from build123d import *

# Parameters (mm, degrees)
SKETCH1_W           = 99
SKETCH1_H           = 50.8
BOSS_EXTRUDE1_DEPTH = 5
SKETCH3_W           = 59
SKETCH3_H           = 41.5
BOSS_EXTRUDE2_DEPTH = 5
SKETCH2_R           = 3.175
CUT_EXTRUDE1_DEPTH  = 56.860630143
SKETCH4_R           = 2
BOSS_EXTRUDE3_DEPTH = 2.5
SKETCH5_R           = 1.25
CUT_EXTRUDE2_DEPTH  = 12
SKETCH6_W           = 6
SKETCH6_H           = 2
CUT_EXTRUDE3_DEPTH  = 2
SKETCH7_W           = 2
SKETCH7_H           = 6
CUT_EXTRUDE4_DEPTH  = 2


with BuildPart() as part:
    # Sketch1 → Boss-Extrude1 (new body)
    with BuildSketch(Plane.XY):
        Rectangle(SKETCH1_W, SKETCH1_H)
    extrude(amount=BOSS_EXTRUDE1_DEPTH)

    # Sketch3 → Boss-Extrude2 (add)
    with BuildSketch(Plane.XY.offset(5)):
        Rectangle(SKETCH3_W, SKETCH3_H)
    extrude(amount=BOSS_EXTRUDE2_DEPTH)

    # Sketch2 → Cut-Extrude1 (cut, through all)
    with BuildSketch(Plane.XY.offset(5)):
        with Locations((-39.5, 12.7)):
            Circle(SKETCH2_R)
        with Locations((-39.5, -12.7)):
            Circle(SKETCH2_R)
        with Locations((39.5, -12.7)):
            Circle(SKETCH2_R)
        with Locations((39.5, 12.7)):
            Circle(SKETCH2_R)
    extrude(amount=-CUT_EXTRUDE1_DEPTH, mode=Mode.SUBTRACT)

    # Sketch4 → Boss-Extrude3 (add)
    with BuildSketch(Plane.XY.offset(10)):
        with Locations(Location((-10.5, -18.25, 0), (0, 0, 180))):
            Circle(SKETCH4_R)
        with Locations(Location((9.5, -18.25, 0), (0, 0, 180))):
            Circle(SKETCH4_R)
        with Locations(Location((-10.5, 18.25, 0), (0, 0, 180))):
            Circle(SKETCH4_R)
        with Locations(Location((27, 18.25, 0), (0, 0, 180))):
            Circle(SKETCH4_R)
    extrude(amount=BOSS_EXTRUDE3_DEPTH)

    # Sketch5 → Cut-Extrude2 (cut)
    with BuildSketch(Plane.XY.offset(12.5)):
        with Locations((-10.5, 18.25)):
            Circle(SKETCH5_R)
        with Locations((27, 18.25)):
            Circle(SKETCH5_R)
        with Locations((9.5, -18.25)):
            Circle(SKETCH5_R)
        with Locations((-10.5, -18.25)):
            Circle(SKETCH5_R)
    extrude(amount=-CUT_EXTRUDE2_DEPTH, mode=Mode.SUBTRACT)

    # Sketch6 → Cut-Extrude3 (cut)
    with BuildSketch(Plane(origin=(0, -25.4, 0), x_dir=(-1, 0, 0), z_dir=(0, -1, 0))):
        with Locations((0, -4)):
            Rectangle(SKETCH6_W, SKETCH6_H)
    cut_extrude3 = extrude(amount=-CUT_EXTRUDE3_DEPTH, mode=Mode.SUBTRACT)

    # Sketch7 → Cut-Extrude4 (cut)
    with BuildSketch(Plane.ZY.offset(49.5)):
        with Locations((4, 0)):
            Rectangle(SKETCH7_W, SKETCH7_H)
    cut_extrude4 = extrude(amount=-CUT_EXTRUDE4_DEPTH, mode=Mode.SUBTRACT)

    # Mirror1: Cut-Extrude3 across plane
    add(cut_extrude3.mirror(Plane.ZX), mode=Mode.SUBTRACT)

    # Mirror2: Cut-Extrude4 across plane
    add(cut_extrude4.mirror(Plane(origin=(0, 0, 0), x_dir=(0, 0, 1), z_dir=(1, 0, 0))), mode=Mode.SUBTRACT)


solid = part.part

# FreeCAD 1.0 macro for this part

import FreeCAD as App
import Part
import Sketcher
Q = App.Units.Quantity


def add_polygon(sketch, points):
    """Adds a closed chain of lines whose ends are joined by coincident constraints."""
    first, n = sketch.GeometryCount, len(points)
    for a, b in zip(points, points[1:] + points[:1]):
        sketch.addGeometry(Part.LineSegment(App.Vector(*a, 0), App.Vector(*b, 0)), False)
    for i in range(n):
        sketch.addConstraint(Sketcher.Constraint("Coincident", first + i, 2, first + (i + 1) % n, 1))

doc = App.newDocument("Part")
body = doc.addObject("PartDesign::Body", "Body")

# Sketch on XY plane
sketch1 = doc.addObject("Sketcher::SketchObject", "Sketch")
body.addObject(sketch1)
sketch1.AttachmentSupport = (doc.XY_Plane, [""])
sketch1.MapMode = "FlatFace"
add_polygon(sketch1, [(-49.5, 25.4), (-49.5, -25.4), (49.5, -25.4), (49.5, 25.4)])  # lines 0-3
sketch1.addConstraint([
    Sketcher.Constraint("Vertical", 0),
    Sketcher.Constraint("Horizontal", 1),
    Sketcher.Constraint("Vertical", 2),
    Sketcher.Constraint("Horizontal", 3),
    Sketcher.Constraint("Symmetric", 0, 2, 2, 2, -1, 1),
    Sketcher.Constraint("DistanceX", 1, 1, 1, 2, Q("99 mm")),
    Sketcher.Constraint("DistanceY", 0, 2, 0, 1, Q("50.8 mm")),
])
pad1 = doc.addObject("PartDesign::Pad", "Pad")
body.addObject(pad1)
pad1.Profile = sketch1
pad1.Length = 5

# Sketch on XY plane
sketch2 = doc.addObject("Sketcher::SketchObject", "Sketch001")
body.addObject(sketch2)
sketch2.AttachmentSupport = (doc.XY_Plane, [""])
sketch2.MapMode = "FlatFace"
sketch2.AttachmentOffset = App.Placement(App.Vector(0, 0, 5), App.Rotation())
add_polygon(sketch2, [(-29.5, 20.75), (-29.5, -20.75), (29.5, -20.75), (29.5, 20.75)])  # lines 0-3
sketch2.addConstraint([
    Sketcher.Constraint("Vertical", 0),
    Sketcher.Constraint("Horizontal", 1),
    Sketcher.Constraint("Vertical", 2),
    Sketcher.Constraint("Horizontal", 3),
    Sketcher.Constraint("Symmetric", 0, 2, 2, 2, -1, 1),
    Sketcher.Constraint("DistanceX", 1, 1, 1, 2, Q("59 mm")),
    Sketcher.Constraint("DistanceY", 0, 2, 0, 1, Q("41.5 mm")),
])
pad2 = doc.addObject("PartDesign::Pad", "Pad001")
body.addObject(pad2)
pad2.Profile = sketch2
pad2.Length = 5

# Sketch on XY plane
sketch3 = doc.addObject("Sketcher::SketchObject", "Sketch002")
body.addObject(sketch3)
sketch3.AttachmentSupport = (doc.XY_Plane, [""])
sketch3.MapMode = "FlatFace"
sketch3.AttachmentOffset = App.Placement(App.Vector(0, 0, 5), App.Rotation())
sketch3.addGeometry([
    Part.Circle(App.Vector(-39.5, 12.7, 0), App.Vector(0, 0, 1), 3.175),
    Part.Circle(App.Vector(-39.5, -12.7, 0), App.Vector(0, 0, 1), 3.175),
    Part.Circle(App.Vector(39.5, -12.7, 0), App.Vector(0, 0, 1), 3.175),
    Part.Circle(App.Vector(39.5, 12.7, 0), App.Vector(0, 0, 1), 3.175),
], False)
sketch3.addConstraint([
    Sketcher.Constraint("Equal", 0, 1),
    Sketcher.Constraint("Equal", 1, 2),
    Sketcher.Constraint("Equal", 2, 3),
    Sketcher.Constraint("Symmetric", 0, 3, 2, 3, -1, 1),
    Sketcher.Constraint("Symmetric", 1, 3, 3, 3, -1, 1),
    Sketcher.Constraint("Symmetric", 1, 3, 2, 3, -2),
    Sketcher.Constraint("Diameter", 0, Q("6.35 mm")),
    Sketcher.Constraint("DistanceX", 1, 3, 2, 3, Q("79 mm")),
    Sketcher.Constraint("DistanceY", -1, 1, 0, 3, Q("12.7 mm")),
])
pocket1 = doc.addObject("PartDesign::Pocket", "Pocket")
body.addObject(pocket1)
pocket1.Profile = sketch3
pocket1.Type = "ThroughAll"

# Sketch on XY plane
sketch4 = doc.addObject("Sketcher::SketchObject", "Sketch003")
body.addObject(sketch4)
sketch4.AttachmentSupport = (doc.XY_Plane, [""])
sketch4.MapMode = "FlatFace"
sketch4.AttachmentOffset = App.Placement(App.Vector(0, 0, 10), App.Rotation())
sketch4.addGeometry([
    Part.Circle(App.Vector(-10.5, -18.25, 0), App.Vector(0, 0, 1), 2),
    Part.Circle(App.Vector(9.5, -18.25, 0), App.Vector(0, 0, 1), 2),
    Part.Circle(App.Vector(-10.5, 18.25, 0), App.Vector(0, 0, 1), 2),
    Part.Circle(App.Vector(27, 18.25, 0), App.Vector(0, 0, 1), 2),
], False)
sketch4.addConstraint([
    Sketcher.Constraint("Equal", 0, 1),
    Sketcher.Constraint("Equal", 1, 2),
    Sketcher.Constraint("Equal", 2, 3),
    Sketcher.Constraint("Symmetric", 0, 3, 2, 3, -1),
    Sketcher.Constraint("Horizontal", 0, 3, 1, 3),
    Sketcher.Constraint("Horizontal", 2, 3, 3, 3),
    Sketcher.Constraint("Diameter", 0, Q("4 mm")),
    Sketcher.Constraint("DistanceX", -1, 1, 3, 3, Q("27 mm")),
    Sketcher.Constraint("DistanceX", 0, 3, 1, 3, Q("20 mm")),
    Sketcher.Constraint("DistanceX", 0, 3, -1, 1, Q("10.5 mm")),
    Sketcher.Constraint("DistanceY", 0, 3, 2, 3, Q("36.5 mm")),
])
pad3 = doc.addObject("PartDesign::Pad", "Pad002")
body.addObject(pad3)
pad3.Profile = sketch4
pad3.Length = 2.5

# Sketch on XY plane
sketch5 = doc.addObject("Sketcher::SketchObject", "Sketch004")
body.addObject(sketch5)
sketch5.AttachmentSupport = (doc.XY_Plane, [""])
sketch5.MapMode = "FlatFace"
sketch5.AttachmentOffset = App.Placement(App.Vector(0, 0, 12.5), App.Rotation())
sketch5.addGeometry([
    Part.Circle(App.Vector(-10.5, 18.25, 0), App.Vector(0, 0, 1), 1.25),
    Part.Circle(App.Vector(27, 18.25, 0), App.Vector(0, 0, 1), 1.25),
    Part.Circle(App.Vector(9.5, -18.25, 0), App.Vector(0, 0, 1), 1.25),
    Part.Circle(App.Vector(-10.5, -18.25, 0), App.Vector(0, 0, 1), 1.25),
], False)
sketch5.addConstraint([
    Sketcher.Constraint("Equal", 0, 1),
    Sketcher.Constraint("Equal", 1, 2),
    Sketcher.Constraint("Equal", 2, 3),
    Sketcher.Constraint("Symmetric", 0, 3, 3, 3, -1),
    Sketcher.Constraint("Horizontal", 0, 3, 1, 3),
    Sketcher.Constraint("Horizontal", 2, 3, 3, 3),
    Sketcher.Constraint("Diameter", 0, Q("2.5 mm")),
    Sketcher.Constraint("DistanceX", -1, 1, 1, 3, Q("27 mm")),
    Sketcher.Constraint("DistanceX", 0, 3, 2, 3, Q("20 mm")),
    Sketcher.Constraint("DistanceX", 0, 3, -1, 1, Q("10.5 mm")),
    Sketcher.Constraint("DistanceY", 2, 3, 1, 3, Q("36.5 mm")),
])
pocket2 = doc.addObject("PartDesign::Pocket", "Pocket001")
body.addObject(pocket2)
pocket2.Profile = sketch5
pocket2.Length = 12

# Sketch on XZ plane
sketch6 = doc.addObject("Sketcher::SketchObject", "Sketch005")
body.addObject(sketch6)
sketch6.AttachmentSupport = (doc.XZ_Plane, [""])
sketch6.MapMode = "FlatFace"
sketch6.AttachmentOffset = App.Placement(App.Vector(0, 0, 25.4), App.Rotation())
add_polygon(sketch6, [(3, 3), (3, 5), (-3, 5), (-3, 3)])  # lines 0-3
sketch6.addConstraint([
    Sketcher.Constraint("Vertical", 0),
    Sketcher.Constraint("Horizontal", 1),
    Sketcher.Constraint("Vertical", 2),
    Sketcher.Constraint("Horizontal", 3),
    Sketcher.Constraint("DistanceX", 1, 2, 1, 1, Q("6 mm")),
    Sketcher.Constraint("DistanceY", 0, 1, 0, 2, Q("2 mm")),
    Sketcher.Constraint("DistanceX", -1, 1, 0, 2, Q("3 mm")),
    Sketcher.Constraint("DistanceY", -1, 1, 0, 2, Q("5 mm")),
])
pocket3 = doc.addObject("PartDesign::Pocket", "Pocket002")
body.addObject(pocket3)
pocket3.Profile = sketch6
pocket3.Length = 2

# Sketch on YZ plane
sketch7 = doc.addObject("Sketcher::SketchObject", "Sketch006")
body.addObject(sketch7)
sketch7.AttachmentSupport = (doc.YZ_Plane, [""])
sketch7.MapMode = "FlatFace"
sketch7.AttachmentOffset = App.Placement(App.Vector(0, 0, -49.5), App.Rotation())
add_polygon(sketch7, [(3, 3), (-3, 3), (-3, 5), (3, 5)])  # lines 0-3
sketch7.addConstraint([
    Sketcher.Constraint("Horizontal", 0),
    Sketcher.Constraint("Vertical", 1),
    Sketcher.Constraint("Horizontal", 2),
    Sketcher.Constraint("Vertical", 3),
    Sketcher.Constraint("DistanceX", 0, 2, 0, 1, Q("6 mm")),
    Sketcher.Constraint("DistanceY", 1, 1, 1, 2, Q("2 mm")),
    Sketcher.Constraint("DistanceX", 0, 2, -1, 1, Q("3 mm")),
    Sketcher.Constraint("DistanceY", -1, 1, 0, 2, Q("3 mm")),
])
pocket4 = doc.addObject("PartDesign::Pocket", "Pocket003")
body.addObject(pocket4)
pocket4.Profile = sketch7
pocket4.Length = 2
pocket4.Reversed = True
doc.recompute()

mirrored = doc.addObject("PartDesign::Mirrored", "Mirrored")
body.addObject(mirrored)
mirrored.Originals = [pocket3]
mirrored.MirrorPlane = (doc.XZ_Plane, [""])
body.Tip = mirrored
doc.recompute()

mirrored2 = doc.addObject("PartDesign::Mirrored", "Mirrored001")
body.addObject(mirrored2)
mirrored2.Originals = [pocket4]
mirrored2.MirrorPlane = (doc.YZ_Plane, [""])
body.Tip = mirrored2

doc.recompute()
